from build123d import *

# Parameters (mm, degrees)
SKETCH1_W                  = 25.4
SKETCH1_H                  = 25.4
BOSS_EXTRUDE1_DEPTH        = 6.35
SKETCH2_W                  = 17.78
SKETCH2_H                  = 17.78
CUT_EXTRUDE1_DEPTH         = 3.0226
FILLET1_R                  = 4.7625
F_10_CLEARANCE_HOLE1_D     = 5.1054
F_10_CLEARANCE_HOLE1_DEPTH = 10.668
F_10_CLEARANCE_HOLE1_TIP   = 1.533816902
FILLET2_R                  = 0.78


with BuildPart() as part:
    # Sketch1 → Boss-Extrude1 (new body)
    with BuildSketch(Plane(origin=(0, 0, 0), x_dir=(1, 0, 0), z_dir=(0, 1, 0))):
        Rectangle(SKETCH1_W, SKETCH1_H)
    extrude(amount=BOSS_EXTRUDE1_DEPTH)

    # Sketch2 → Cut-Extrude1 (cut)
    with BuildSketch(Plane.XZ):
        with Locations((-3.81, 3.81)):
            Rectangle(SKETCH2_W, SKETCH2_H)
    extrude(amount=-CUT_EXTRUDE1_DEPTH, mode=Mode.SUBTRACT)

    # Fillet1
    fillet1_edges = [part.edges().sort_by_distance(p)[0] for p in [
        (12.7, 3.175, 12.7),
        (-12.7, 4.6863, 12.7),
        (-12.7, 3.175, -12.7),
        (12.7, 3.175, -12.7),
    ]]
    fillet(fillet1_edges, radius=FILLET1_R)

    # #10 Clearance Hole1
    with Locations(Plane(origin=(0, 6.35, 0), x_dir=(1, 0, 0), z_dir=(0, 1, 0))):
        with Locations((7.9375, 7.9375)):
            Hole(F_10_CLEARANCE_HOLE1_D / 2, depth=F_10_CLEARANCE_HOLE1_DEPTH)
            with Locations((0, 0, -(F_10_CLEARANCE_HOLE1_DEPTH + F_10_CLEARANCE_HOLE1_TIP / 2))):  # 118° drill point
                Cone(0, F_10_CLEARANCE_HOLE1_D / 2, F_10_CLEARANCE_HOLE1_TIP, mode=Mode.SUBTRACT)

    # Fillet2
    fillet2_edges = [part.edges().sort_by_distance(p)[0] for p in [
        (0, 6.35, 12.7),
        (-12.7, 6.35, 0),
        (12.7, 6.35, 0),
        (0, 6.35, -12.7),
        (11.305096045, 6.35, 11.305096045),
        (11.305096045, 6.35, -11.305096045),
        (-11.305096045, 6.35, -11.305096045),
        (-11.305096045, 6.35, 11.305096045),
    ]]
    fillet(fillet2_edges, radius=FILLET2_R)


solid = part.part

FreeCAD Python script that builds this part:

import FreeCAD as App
import Part
import Sketcher

V = App.Vector
Q = App.Units.Quantity


def edges_at(feature, points):
    """Names of the edges that pass closest to the given points."""
    edges = feature.Shape.Edges
    near = lambda p: min(range(len(edges)), key=lambda i: edges[i].distToShape(Part.Vertex(*p))[0])
    return sorted({f"Edge{near(p) + 1}" for p in points})


def add_polygon(sketch, points):
    """Adds a closed chain of lines whose ends are joined by coincident constraints."""
    first, n = sketch.GeometryCount, len(points)
    for a, b in zip(points, points[1:] + points[:1]):
        sketch.addGeometry(Part.LineSegment(App.Vector(*a, 0), App.Vector(*b, 0)), False)
    for i in range(n):
        sketch.addConstraint(Sketcher.Constraint("Coincident", first + i, 2, first + (i + 1) % n, 1))

doc = App.newDocument("Part")
body = doc.addObject("PartDesign::Body", "Body")

sketch1 = doc.addObject("Sketcher::SketchObject", "Sketch")
body.addObject(sketch1)
sketch1.AttachmentSupport = (doc.XZ_Plane, [""])
sketch1.MapMode = "FlatFace"
add_polygon(sketch1, [(-13, -13), (-13, 13), (13, 13), (13, -13)])
sketch1.addConstraint([
    Sketcher.Constraint("Vertical", 0),
    Sketcher.Constraint("Horizontal", 1),
    Sketcher.Constraint("Vertical", 2),
    Sketcher.Constraint("Horizontal", 3),
    Sketcher.Constraint("Symmetric", 0, 2, 2, 2, -1, 1),
    Sketcher.Constraint("Equal", 3, 0),
    Sketcher.Constraint("DistanceX", 1, 1, 1, 2, Q("1 in")),
])
pad1 = doc.addObject("PartDesign::Pad", "Pad")
body.addObject(pad1)
pad1.Profile = sketch1
pad1.Length = Q("0.25 in")
pad1.Reversed = True

sketch2 = doc.addObject("Sketcher::SketchObject", "Sketch001")
body.addObject(sketch2)
sketch2.AttachmentSupport = (doc.XZ_Plane, [""])
sketch2.MapMode = "FlatFace"
add_polygon(sketch2, [(-13, 13), (-13, -5), (5, -5), (5, 13)])
sketch2.addConstraint([
    Sketcher.Constraint("Vertical", 0),
    Sketcher.Constraint("Horizontal", 1),
    Sketcher.Constraint("Vertical", 2),
    Sketcher.Constraint("Horizontal", 3),
    Sketcher.Constraint("Equal", 3, 0),
    Sketcher.Constraint("DistanceX", 1, 1, 1, 2, Q("0.7 in")),
    Sketcher.Constraint("DistanceX", 0, 2, -1, 1, Q("0.5 in")),
    Sketcher.Constraint("DistanceY", 0, 2, -1, 1, Q("0.2 in")),
])
pocket1 = doc.addObject("PartDesign::Pocket", "Pocket")
body.addObject(pocket1)
pocket1.Profile = sketch2
pocket1.Length = Q("0.119 in")
doc.recompute()

fillet = doc.addObject("PartDesign::Fillet", "Fillet")
body.addObject(fillet)
fillet.Base = (pocket1, edges_at(pocket1, [
    (12.7, 3.175, 12.7),
    (-12.7, 4.686, 12.7),
    (-12.7, 3.175, -12.7),
    (12.7, 3.175, -12.7),
]))
fillet.Radius = Q("0.1875 in")

sketch3 = doc.addObject("Sketcher::SketchObject", "Sketch002")
body.addObject(sketch3)
sketch3.AttachmentSupport = (doc.XZ_Plane, [""])
sketch3.MapMode = "FlatFace"
sketch3.AttachmentOffset = App.Placement(V(0, 0, -0.25 * 25.4), App.Rotation())
sketch3.addGeometry(Part.Circle(V(7.9, -7.9, 0), V(0, 0, 1), 2.6), False)
sketch3.addConstraint([
    Sketcher.Constraint("Diameter", 0, Q("0.201 in")),
    Sketcher.Constraint("DistanceX", -1, 1, 0, 3, Q("0.3125 in")),
    Sketcher.Constraint("DistanceY", 0, 3, -1, 1, Q("0.3125 in")),
])
doc.recompute()
hole = doc.addObject("PartDesign::Hole", "Hole")
body.addObject(hole)
hole.Profile = sketch3
hole.ThreadType = "None"
hole.Diameter = Q("0.201 in")
hole.DepthType = "Dimension"
hole.Depth = Q("0.42 in")
hole.DrillPoint = "Angled"
hole.DrillPointAngle = 118
hole.Reversed = True
doc.recompute()

fillet2 = doc.addObject("PartDesign::Fillet", "Fillet001")
body.addObject(fillet2)
fillet2.Base = (hole, edges_at(hole, [
    (0, 6.35, 12.7),
    (-12.7, 6.35, 0),
    (12.7, 6.35, 0),
    (0, 6.35, -12.7),
    (11.305, 6.35, 11.305),
    (11.305, 6.35, -11.305),
    (-11.305, 6.35, -11.305),
    (-11.305, 6.35, 11.305),
]))
fillet2.Radius = 0.78

doc.recompute()
